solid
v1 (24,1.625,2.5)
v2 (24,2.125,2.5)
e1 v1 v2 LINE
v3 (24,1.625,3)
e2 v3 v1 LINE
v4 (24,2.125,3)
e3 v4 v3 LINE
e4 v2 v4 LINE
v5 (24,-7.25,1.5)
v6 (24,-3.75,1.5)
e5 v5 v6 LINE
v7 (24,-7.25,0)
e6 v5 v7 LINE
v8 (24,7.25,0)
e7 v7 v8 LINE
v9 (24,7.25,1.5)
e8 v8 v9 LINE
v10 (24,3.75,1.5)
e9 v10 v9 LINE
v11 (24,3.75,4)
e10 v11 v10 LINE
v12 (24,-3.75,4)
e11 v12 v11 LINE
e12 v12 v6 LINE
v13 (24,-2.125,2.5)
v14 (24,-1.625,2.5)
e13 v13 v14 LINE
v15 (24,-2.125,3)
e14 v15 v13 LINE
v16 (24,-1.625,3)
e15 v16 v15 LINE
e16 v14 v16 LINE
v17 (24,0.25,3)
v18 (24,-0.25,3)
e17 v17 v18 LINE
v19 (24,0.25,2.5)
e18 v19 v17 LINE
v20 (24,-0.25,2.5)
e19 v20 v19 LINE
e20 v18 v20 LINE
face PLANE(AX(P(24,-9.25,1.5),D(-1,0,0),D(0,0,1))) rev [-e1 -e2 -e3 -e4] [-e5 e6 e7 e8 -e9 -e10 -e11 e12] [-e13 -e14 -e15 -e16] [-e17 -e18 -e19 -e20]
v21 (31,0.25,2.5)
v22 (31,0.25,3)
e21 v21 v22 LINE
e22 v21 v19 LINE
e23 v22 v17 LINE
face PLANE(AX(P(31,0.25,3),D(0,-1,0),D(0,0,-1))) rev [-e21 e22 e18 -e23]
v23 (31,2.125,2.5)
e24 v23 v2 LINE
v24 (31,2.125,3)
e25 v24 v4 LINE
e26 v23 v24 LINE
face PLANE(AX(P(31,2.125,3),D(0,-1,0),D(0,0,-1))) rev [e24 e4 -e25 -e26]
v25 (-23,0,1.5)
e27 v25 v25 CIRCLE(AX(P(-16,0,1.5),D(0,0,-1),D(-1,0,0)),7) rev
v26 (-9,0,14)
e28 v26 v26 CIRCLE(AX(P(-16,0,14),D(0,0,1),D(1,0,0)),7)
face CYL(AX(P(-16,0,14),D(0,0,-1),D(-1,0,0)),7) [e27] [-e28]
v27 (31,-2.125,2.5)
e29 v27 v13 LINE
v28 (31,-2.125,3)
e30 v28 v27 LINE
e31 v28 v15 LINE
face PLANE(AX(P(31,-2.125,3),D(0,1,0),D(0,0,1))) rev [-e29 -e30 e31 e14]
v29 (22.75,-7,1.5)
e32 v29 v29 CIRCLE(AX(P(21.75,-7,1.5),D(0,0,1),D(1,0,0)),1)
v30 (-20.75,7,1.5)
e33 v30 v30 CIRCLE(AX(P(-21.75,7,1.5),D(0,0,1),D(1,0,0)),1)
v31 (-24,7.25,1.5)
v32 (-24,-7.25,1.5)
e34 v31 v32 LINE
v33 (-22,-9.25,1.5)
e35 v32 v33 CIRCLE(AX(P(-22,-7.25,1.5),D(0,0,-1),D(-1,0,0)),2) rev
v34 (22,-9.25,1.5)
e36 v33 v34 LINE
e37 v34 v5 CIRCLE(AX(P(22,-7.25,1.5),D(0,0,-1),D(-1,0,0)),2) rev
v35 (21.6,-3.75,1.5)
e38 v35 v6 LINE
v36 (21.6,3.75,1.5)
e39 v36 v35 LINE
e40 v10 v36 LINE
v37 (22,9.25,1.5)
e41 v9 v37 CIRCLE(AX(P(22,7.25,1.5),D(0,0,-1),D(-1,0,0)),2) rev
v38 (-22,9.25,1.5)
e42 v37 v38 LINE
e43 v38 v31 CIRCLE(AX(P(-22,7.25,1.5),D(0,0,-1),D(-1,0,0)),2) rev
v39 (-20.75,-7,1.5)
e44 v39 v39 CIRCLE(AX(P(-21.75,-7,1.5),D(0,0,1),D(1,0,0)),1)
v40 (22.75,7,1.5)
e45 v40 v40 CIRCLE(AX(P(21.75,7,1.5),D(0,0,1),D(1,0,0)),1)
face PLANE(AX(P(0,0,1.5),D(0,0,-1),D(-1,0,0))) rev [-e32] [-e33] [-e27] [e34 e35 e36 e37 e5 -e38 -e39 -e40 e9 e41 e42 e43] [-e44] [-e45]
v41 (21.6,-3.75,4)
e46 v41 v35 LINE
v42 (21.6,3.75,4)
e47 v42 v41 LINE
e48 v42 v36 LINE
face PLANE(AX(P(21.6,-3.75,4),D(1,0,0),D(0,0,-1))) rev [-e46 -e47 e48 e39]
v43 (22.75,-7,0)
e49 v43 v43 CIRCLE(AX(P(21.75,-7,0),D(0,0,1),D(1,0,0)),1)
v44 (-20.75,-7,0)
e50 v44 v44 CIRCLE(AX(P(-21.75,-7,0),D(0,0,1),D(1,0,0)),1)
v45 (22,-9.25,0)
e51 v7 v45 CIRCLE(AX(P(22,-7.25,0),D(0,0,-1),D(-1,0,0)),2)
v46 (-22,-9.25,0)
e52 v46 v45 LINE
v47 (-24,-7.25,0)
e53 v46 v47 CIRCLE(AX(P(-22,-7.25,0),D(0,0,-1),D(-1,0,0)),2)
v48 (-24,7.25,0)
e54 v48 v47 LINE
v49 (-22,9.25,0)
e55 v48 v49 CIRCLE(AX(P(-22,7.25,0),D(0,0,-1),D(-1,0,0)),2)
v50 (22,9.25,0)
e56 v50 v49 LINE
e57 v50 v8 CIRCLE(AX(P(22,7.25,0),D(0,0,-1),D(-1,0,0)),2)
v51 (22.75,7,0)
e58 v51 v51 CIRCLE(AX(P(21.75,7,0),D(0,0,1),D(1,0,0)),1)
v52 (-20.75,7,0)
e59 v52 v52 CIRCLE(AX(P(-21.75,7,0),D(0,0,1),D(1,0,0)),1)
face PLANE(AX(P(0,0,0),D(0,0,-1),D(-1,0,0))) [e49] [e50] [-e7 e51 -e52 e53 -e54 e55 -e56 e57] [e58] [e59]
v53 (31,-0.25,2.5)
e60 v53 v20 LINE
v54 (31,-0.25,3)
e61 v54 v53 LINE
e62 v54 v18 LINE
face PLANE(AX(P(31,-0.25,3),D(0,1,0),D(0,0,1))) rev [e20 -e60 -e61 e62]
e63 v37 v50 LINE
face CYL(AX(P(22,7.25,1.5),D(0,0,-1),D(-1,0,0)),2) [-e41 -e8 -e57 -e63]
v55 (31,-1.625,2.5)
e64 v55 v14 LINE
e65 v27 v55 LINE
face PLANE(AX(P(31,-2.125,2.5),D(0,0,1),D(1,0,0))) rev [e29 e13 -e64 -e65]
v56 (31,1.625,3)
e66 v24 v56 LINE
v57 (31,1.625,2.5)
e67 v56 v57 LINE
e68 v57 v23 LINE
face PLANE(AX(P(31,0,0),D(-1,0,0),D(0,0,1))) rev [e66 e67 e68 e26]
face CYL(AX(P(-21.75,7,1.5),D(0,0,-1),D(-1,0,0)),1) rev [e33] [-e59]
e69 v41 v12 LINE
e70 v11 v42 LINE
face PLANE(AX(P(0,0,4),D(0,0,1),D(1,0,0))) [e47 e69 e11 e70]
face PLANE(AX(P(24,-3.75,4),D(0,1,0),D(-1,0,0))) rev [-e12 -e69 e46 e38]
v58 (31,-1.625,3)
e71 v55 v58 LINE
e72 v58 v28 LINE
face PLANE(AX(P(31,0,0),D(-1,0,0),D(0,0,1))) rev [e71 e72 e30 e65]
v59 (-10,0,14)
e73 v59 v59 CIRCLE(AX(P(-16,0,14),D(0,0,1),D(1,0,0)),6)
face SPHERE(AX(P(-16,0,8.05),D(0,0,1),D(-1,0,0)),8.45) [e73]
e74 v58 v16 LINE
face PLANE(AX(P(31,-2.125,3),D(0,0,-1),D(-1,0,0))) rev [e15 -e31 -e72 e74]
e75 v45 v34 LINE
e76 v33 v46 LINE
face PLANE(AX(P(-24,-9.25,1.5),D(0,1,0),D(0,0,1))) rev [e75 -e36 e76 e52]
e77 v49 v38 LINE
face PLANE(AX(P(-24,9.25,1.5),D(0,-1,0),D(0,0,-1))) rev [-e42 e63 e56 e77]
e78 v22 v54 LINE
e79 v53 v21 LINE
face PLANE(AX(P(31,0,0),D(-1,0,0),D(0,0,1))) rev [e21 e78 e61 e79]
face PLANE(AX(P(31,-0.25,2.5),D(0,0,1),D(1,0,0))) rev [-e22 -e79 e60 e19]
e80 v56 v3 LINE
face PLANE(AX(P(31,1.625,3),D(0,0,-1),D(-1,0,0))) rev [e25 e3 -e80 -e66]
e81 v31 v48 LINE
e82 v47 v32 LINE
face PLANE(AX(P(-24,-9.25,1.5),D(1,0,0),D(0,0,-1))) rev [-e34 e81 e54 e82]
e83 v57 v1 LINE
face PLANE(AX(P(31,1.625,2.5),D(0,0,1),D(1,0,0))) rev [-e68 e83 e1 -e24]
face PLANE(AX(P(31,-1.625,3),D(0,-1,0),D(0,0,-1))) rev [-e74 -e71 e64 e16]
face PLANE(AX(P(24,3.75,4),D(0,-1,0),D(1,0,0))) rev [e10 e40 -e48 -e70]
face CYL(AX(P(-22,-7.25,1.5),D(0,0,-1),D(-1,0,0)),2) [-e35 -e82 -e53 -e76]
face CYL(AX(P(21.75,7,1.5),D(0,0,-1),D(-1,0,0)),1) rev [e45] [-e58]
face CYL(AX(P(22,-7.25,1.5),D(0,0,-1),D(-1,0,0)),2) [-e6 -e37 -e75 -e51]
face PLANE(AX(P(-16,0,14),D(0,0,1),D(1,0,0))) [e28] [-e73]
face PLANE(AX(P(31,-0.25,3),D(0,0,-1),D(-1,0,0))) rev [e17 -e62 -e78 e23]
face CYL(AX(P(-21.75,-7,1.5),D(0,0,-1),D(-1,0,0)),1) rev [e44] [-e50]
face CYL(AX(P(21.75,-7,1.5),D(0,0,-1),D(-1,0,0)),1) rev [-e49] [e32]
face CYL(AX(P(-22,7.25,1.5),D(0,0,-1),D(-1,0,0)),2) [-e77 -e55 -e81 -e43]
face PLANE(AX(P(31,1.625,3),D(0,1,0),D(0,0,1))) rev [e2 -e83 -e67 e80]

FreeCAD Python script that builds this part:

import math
import FreeCAD as App
import Part
import Sketcher
from FreeCAD import Vector
Q = App.Units.Quantity


def edges_at(feature, points):
    """Names of the edges that pass closest to the given points."""
    edges = feature.Shape.Edges
    near = lambda p: min(range(len(edges)), key=lambda i: edges[i].distToShape(Part.Vertex(*p))[0])
    return sorted({f"Edge{near(p) + 1}" for p in points})


def add_polygon(sketch, points):
    """Adds a closed chain of lines whose ends are joined by coincident constraints."""
    first, n = sketch.GeometryCount, len(points)
    for a, b in zip(points, points[1:] + points[:1]):
        sketch.addGeometry(Part.LineSegment(App.Vector(*a, 0), App.Vector(*b, 0)), False)
    for i in range(n):
        sketch.addConstraint(Sketcher.Constraint("Coincident", first + i, 2, first + (i + 1) % n, 1))

doc = App.newDocument("Part")
body = doc.addObject("PartDesign::Body", "Body")

sketch1 = body.newObject("Sketcher::SketchObject", "Sketch")
sketch1.AttachmentSupport = (doc.getObject("XY_Plane"), [""])
sketch1.MapMode = "FlatFace"
add_polygon(sketch1, [(-24, 9.2), (-24, -9.2), (24, -9.2), (24, 9.2)])
sketch1.addGeometry(Part.Circle(Vector(-21.8, -7, 0), Vector(0, 0, 1), 1), False)
sketch1.addGeometry(Part.Circle(Vector(21.8, -7, 0), Vector(0, 0, 1), 1), False)
sketch1.addGeometry(Part.Circle(Vector(-21.8, 7, 0), Vector(0, 0, 1), 1), False)
sketch1.addGeometry(Part.Circle(Vector(21.8, 7, 0), Vector(0, 0, 1), 1), False)
sketch1.addConstraint([
    Sketcher.Constraint("Vertical", 0),
    Sketcher.Constraint("Horizontal", 1),
    Sketcher.Constraint("Vertical", 2),
    Sketcher.Constraint("Horizontal", 3),
    Sketcher.Constraint("Equal", 4, 5),
    Sketcher.Constraint("Equal", 5, 6),
    Sketcher.Constraint("Equal", 6, 7),
    Sketcher.Constraint("Symmetric", 5, 3, 6, 3, -1, 1),
    Sketcher.Constraint("Symmetric", 4, 3, 7, 3, -1, 1),
    Sketcher.Constraint("Symmetric", 0, 2, 2, 2, -1, 1),
    Sketcher.Constraint("Symmetric", 4, 3, 5, 3, -2),
    Sketcher.Constraint("Diameter", 4, Q("2 mm")),
    Sketcher.Constraint("DistanceX", 1, 1, 1, 2, Q("48 mm")),
    Sketcher.Constraint("DistanceY", 0, 2, 0, 1, Q("18.5 mm")),
    Sketcher.Constraint("DistanceY", 4, 3, -1, 1, Q("7 mm")),
    Sketcher.Constraint("DistanceX", 4, 3, 5, 3, Q("43.5 mm")),
])
pad1 = body.newObject("PartDesign::Pad", "Pad")
pad1.Profile = sketch1
pad1.Length = 1.5
doc.recompute()

fillet = body.newObject("PartDesign::Fillet", "Fillet")
fillet.Base = (pad1, edges_at(pad1, [
    (24, -9.25, 0.75),
    (-24, -9.25, 0.75),
    (-24, 9.25, 0.75),
    (24, 9.25, 0.75),
]))
fillet.Radius = 2

sketch2 = body.newObject("Sketcher::SketchObject", "Sketch001")
sketch2.AttachmentSupport = (doc.getObject("XY_Plane"), [""])
sketch2.MapMode = "FlatFace"
sketch2.AttachmentOffset = App.Placement(Vector(0, 0, 1.5), App.Rotation())
sketch2.addGeometry(Part.Circle(Vector(-16, 0, 0), Vector(0, 0, 1), 7), False)
sketch2.addConstraint([
    Sketcher.Constraint("PointOnObject", 0, 3, -1),
    Sketcher.Constraint("Diameter", 0, Q("14 mm")),
    Sketcher.Constraint("DistanceX", 0, 3, -1, 1, Q("16 mm")),
])
pad2 = body.newObject("PartDesign::Pad", "Pad001")
pad2.Profile = sketch2
pad2.Length = 12.5

sketch3 = body.newObject("Sketcher::SketchObject", "Sketch002")
sketch3.AttachmentSupport = (doc.getObject("XZ_Plane"), [""])
sketch3.MapMode = "FlatFace"
sketch3.addGeometry([
    Part.LineSegment(Vector(-16, 14, 0), Vector(-16, 16.5, 0)),
    Part.ArcOfCircle(Part.Circle(Vector(-16, 8.1, 0), Vector(0, 0, 1), 8.4), math.radians(90), math.radians(135)),
    Part.LineSegment(Vector(-22, 14, 0), Vector(-16, 14, 0)),
], False)
sketch3.addGeometry(Part.LineSegment(Vector(-16, 16.5, 0), Vector(-16, 8.1, 0)), True)
sketch3.addConstraint([
    Sketcher.Constraint("Coincident", 0, 2, 1, 1),
    Sketcher.Constraint("Coincident", 1, 2, 2, 1),
    Sketcher.Constraint("Coincident", 2, 2, 0, 1),
    Sketcher.Constraint("Vertical", 0),
    Sketcher.Constraint("Horizontal", 2),
    Sketcher.Constraint("Vertical", 3),
    Sketcher.Constraint("Coincident", 3, 1, 0, 2),
    Sketcher.Constraint("Coincident", 3, 2, 1, 3),
    Sketcher.Constraint("DistanceX", 2, 1, 2, 2, Q("6 mm")),
    Sketcher.Constraint("Radius", 1, Q("8.45 mm")),
    Sketcher.Constraint("DistanceX", 1, 3, -1, 1, Q("16 mm")),
    Sketcher.Constraint("DistanceY", -1, 1, 1, 2, Q("14 mm")),
])
revolution = body.newObject("PartDesign::Revolution", "Revolution")
revolution.Profile = sketch3
revolution.ReferenceAxis = (sketch3, ["Axis0"])
revolution.Angle = 360

sketch4 = body.newObject("Sketcher::SketchObject", "Sketch003")
sketch4.AttachmentSupport = (doc.getObject("XY_Plane"), [""])
sketch4.MapMode = "FlatFace"
sketch4.AttachmentOffset = App.Placement(Vector(0, 0, 1.5), App.Rotation())
add_polygon(sketch4, [(21.6, 3.8), (21.6, -3.8), (24, -3.8), (24, 3.8)])
sketch4.addConstraint([
    Sketcher.Constraint("Vertical", 0),
    Sketcher.Constraint("Horizontal", 1),
    Sketcher.Constraint("Vertical", 2),
    Sketcher.Constraint("Horizontal", 3),
    Sketcher.Constraint("DistanceX", 1, 1, 1, 2, Q("2.4 mm")),
    Sketcher.Constraint("DistanceY", 0, 2, 0, 1, Q("7.5 mm")),
    Sketcher.Constraint("DistanceX", -1, 1, 1, 2, Q("24 mm")),
    Sketcher.Constraint("DistanceY", 0, 2, -1, 1, Q("3.75 mm")),
])
pad3 = body.newObject("PartDesign::Pad", "Pad002")
pad3.Profile = sketch4
pad3.Length = 2.5

sketch5 = body.newObject("Sketcher::SketchObject", "Sketch004")
sketch5.AttachmentSupport = (doc.getObject("YZ_Plane"), [""])
sketch5.MapMode = "FlatFace"
sketch5.AttachmentOffset = App.Placement(Vector(0, 0, 24), App.Rotation())
add_polygon(sketch5, [(2.1, 3), (1.6, 3), (1.6, 2.5), (2.1, 2.5)])
add_polygon(sketch5, [(0.2, 3), (-0.2, 3), (-0.2, 2.5), (0.2, 2.5)])
add_polygon(sketch5, [(-1.6, 3), (-2.1, 3), (-2.1, 2.5), (-1.6, 2.5)])
sketch5.addConstraint([
    Sketcher.Constraint("Horizontal", 0),
    Sketcher.Constraint("Vertical", 1),
    Sketcher.Constraint("Horizontal", 2),
    Sketcher.Constraint("Vertical", 3),
    Sketcher.Constraint("Horizontal", 4),
    Sketcher.Constraint("Vertical", 5),
    Sketcher.Constraint("Horizontal", 6),
    Sketcher.Constraint("Vertical", 7),
    Sketcher.Constraint("Horizontal", 8),
    Sketcher.Constraint("Vertical", 9),
    Sketcher.Constraint("Horizontal", 10),
    Sketcher.Constraint("Vertical", 11),
    Sketcher.Constraint("Symmetric", 3, 2, 8, 2, -2),
    Sketcher.Constraint("Symmetric", 1, 2, 10, 2, -2),
    Sketcher.Constraint("Horizontal", 3, 2, 4, 2),
    Sketcher.Constraint("Horizontal", 2, 2, 5, 2),
    Sketcher.Constraint("Equal", 2, 4),
    Sketcher.Constraint("Equal", 10, 1),
    Sketcher.Constraint("DistanceX", 0, 2, 0, 1, Q("0.5 mm")),
    Sketcher.Constraint("DistanceY", -1, 1, 0, 2, Q("3 mm")),
    Sketcher.Constraint("DistanceX", 4, 2, -1, 1, Q("0.25 mm")),
    Sketcher.Constraint("DistanceX", 8, 2, 0, 2, Q("3.75 mm")),
])
pad4 = body.newObject("PartDesign::Pad", "Pad003")
pad4.Profile = sketch5
pad4.Length = 7

doc.recompute()
